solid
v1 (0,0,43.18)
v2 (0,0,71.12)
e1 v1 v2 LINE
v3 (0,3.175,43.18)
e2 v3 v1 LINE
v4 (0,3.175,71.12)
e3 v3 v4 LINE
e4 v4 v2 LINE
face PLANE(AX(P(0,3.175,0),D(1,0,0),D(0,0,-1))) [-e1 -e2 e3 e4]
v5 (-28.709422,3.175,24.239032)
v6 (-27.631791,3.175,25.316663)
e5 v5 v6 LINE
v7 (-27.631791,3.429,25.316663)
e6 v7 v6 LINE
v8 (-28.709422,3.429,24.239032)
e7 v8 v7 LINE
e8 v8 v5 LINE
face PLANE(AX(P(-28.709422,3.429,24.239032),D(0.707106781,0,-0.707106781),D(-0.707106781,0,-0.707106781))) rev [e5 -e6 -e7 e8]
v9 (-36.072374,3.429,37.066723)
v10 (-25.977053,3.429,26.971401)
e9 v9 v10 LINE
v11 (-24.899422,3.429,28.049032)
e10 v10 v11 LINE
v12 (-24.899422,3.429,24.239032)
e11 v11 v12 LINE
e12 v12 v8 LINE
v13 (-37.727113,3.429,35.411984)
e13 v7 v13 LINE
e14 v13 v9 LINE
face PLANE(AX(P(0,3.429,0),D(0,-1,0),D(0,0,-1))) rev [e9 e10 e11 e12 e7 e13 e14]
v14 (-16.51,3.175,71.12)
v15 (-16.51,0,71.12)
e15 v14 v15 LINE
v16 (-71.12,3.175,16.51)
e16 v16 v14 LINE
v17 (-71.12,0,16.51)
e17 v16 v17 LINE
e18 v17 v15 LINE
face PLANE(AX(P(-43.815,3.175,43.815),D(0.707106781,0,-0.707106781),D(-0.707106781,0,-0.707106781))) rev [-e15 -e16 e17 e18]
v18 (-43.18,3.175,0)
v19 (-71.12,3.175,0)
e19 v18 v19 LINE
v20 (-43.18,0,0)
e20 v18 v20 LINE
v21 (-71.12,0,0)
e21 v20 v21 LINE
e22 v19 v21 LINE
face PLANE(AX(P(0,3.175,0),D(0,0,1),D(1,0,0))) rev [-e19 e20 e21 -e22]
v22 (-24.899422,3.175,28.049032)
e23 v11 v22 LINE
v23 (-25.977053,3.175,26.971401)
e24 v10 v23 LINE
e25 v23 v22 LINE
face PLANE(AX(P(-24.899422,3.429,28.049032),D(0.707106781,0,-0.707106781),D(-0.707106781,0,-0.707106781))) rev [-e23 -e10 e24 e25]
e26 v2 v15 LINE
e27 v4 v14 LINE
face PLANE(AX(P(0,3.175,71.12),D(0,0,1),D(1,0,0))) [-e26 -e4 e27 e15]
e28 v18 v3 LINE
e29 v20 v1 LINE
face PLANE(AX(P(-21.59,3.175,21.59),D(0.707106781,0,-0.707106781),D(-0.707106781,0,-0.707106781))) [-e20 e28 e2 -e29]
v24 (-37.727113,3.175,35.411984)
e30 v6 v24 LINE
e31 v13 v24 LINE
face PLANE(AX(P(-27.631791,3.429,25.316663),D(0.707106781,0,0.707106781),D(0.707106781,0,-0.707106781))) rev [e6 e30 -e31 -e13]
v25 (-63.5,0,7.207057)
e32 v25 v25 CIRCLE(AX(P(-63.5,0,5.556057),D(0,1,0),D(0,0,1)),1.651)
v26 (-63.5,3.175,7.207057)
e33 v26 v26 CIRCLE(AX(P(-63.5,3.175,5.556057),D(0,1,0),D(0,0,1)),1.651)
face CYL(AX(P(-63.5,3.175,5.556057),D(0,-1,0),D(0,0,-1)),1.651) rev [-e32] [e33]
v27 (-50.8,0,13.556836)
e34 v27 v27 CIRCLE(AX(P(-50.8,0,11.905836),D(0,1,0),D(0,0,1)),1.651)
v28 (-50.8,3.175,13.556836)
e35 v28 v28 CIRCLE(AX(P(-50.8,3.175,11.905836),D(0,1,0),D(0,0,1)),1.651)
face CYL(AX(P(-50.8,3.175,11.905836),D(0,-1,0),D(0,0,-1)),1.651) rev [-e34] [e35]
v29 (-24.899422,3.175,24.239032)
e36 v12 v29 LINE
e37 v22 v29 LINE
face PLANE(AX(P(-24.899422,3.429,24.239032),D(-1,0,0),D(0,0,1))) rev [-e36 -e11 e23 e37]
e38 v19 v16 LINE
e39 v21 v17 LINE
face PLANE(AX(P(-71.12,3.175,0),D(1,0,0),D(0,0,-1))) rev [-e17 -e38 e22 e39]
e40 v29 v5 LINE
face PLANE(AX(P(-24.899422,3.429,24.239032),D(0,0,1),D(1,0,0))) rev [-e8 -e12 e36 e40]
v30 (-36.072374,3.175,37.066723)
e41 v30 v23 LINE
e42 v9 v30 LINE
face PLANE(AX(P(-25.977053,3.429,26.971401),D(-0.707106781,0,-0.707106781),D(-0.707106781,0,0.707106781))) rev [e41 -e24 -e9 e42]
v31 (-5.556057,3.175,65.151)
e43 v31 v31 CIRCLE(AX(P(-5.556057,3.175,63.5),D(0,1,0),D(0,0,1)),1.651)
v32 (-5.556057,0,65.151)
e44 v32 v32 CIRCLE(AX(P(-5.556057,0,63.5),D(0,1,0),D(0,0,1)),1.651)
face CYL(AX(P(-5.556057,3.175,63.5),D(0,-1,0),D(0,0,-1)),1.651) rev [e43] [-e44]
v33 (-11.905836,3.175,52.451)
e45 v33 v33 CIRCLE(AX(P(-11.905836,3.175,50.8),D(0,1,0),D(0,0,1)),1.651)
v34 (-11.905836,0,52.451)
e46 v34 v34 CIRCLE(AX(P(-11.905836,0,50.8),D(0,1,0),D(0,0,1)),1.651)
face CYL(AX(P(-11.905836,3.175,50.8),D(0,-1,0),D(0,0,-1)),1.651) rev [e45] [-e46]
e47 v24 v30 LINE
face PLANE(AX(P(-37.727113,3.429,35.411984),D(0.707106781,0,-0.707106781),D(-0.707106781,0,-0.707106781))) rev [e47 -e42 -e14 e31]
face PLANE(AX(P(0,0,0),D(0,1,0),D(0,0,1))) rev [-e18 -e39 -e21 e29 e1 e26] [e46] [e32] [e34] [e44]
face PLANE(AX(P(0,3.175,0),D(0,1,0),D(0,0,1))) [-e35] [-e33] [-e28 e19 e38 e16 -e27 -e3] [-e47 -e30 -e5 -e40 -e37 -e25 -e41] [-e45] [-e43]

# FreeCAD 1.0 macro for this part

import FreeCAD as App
import Part
import Sketcher
from FreeCAD import Vector
Q = App.Units.Quantity

doc = App.newDocument("Part")
params = doc.addObject("Spreadsheet::Sheet", "Params")
for row, (alias, value) in enumerate([
    ("sketch1_diameter", "0.13 in"),
    ("sketch1_width", "1.1 in"),
    ("sketch1_width2", "0.65 in"),
    ("pad1_length", "0.125 in"),
    ("sketch2_width", "0.15 in"),
    ("sketch2_length", "0.06 in"),
    ("pad2_length", "0.01 in"),
], start=1):
    params.set(f"A{row}", alias)
    params.set(f"B{row}", "=" + value)
    params.setAlias(f"B{row}", alias)

body = doc.addObject("PartDesign::Body", "Body")

sketch1 = doc.addObject("Sketcher::SketchObject", "Sketch")
body.addObject(sketch1)
sketch1.AttachmentSupport = (doc.XZ_Plane, [""])
sketch1.MapMode = "FlatFace"
sketch1.addGeometry(Part.LineSegment(Vector(0, 43.2, 0), Vector(-43.2, 0, 0)), False)
sketch1.addGeometry(Part.LineSegment(Vector(-43.2, 0, 0), Vector(-71.1, 0, 0)), False)
sketch1.addGeometry(Part.LineSegment(Vector(-71.1, 0, 0), Vector(-71.1, 16.5, 0)), False)
sketch1.addGeometry(Part.LineSegment(Vector(-71.1, 16.5, 0), Vector(-16.5, 71.1, 0)), False)
sketch1.addGeometry(Part.LineSegment(Vector(-16.5, 71.1, 0), Vector(0, 71.1, 0)), False)
sketch1.addGeometry(Part.LineSegment(Vector(0, 71.1, 0), Vector(0, 43.2, 0)), False)
sketch1.addGeometry(Part.Circle(Vector(-5.6, 63.5, 0), Vector(0, 0, 1), 1.7), False)
sketch1.addGeometry(Part.Circle(Vector(-11.9, 50.8, 0), Vector(0, 0, 1), 1.7), False)
sketch1.addGeometry(Part.Circle(Vector(-50.8, 11.9, 0), Vector(0, 0, 1), 1.7), False)
sketch1.addGeometry(Part.Circle(Vector(-63.5, 5.6, 0), Vector(0, 0, 1), 1.7), False)
sketch1.addConstraint(Sketcher.Constraint("Coincident", 0, 2, 1, 1))
sketch1.addConstraint(Sketcher.Constraint("Coincident", 1, 2, 2, 1))
sketch1.addConstraint(Sketcher.Constraint("Coincident", 2, 2, 3, 1))
sketch1.addConstraint(Sketcher.Constraint("Coincident", 3, 2, 4, 1))
sketch1.addConstraint(Sketcher.Constraint("Coincident", 4, 2, 5, 1))
sketch1.addConstraint(Sketcher.Constraint("Coincident", 5, 2, 0, 1))
sketch1.addConstraint(Sketcher.Constraint("Horizontal", 1))
sketch1.addConstraint(Sketcher.Constraint("Vertical", 2))
sketch1.addConstraint(Sketcher.Constraint("Horizontal", 4))
sketch1.addConstraint(Sketcher.Constraint("Vertical", 5))
sketch1.addConstraint(Sketcher.Constraint("Equal", 6, 7))
sketch1.addConstraint(Sketcher.Constraint("Equal", 7, 8))
sketch1.addConstraint(Sketcher.Constraint("Equal", 8, 9))
sketch1.addConstraint(Sketcher.Constraint("PointOnObject", 0, 2, -1))
sketch1.addConstraint(Sketcher.Constraint("PointOnObject", 4, 2, -2))
sketch1.addConstraint(Sketcher.Constraint("Parallel", 0, 3))
sketch1.addConstraint(Sketcher.Constraint("Equal", 4, 2))
sketch1.addConstraint(Sketcher.Constraint("Equal", 1, 5))
sketch1.addConstraint(Sketcher.Constraint("Diameter", 6, Q("0.13 in")))
sketch1.addConstraint(Sketcher.Constraint("DistanceX", 1, 2, 1, 1, Q("1.1 in")))
sketch1.addConstraint(Sketcher.Constraint("DistanceY", -1, 1, 7, 3, Q("2 in")))
sketch1.addConstraint(Sketcher.Constraint("DistanceX", 8, 3, -1, 1, Q("2 in")))
sketch1.addConstraint(Sketcher.Constraint("DistanceX", 4, 1, 4, 2, Q("0.65 in")))
sketch1.addConstraint(Sketcher.Constraint("DistanceY", -1, 1, 6, 3, Q("2.5 in")))
sketch1.addConstraint(Sketcher.Constraint("DistanceX", 9, 3, -1, 1, Q("2.5 in")))
sketch1.addConstraint(Sketcher.Constraint("DistanceX", 0, 2, -1, 1, Q("1.7 in")))
sketch1.addConstraint(Sketcher.Constraint("DistanceX", 7, 3, 6, 3, 6.34978))
sketch1.addConstraint(Sketcher.Constraint("DistanceY", 9, 3, 8, 3, 6.34978))
sketch1.addConstraint(Sketcher.Constraint("DistanceX", 6, 3, -1, 1, 5.556057))
sketch1.addConstraint(Sketcher.Constraint("DistanceY", -1, 1, 8, 3, 11.905836))
sketch1.setExpression("Constraints[18]", "Params.sketch1_diameter")
sketch1.setExpression("Constraints[19]", "Params.sketch1_width")
sketch1.setExpression("Constraints[22]", "Params.sketch1_width2")
pad1 = doc.addObject("PartDesign::Pad", "Pad")
body.addObject(pad1)
pad1.Profile = sketch1
pad1.setExpression("Length", "Params.pad1_length")
pad1.Reversed = True

sketch2 = doc.addObject("Sketcher::SketchObject", "Sketch001")
body.addObject(sketch2)
sketch2.AttachmentSupport = (doc.XZ_Plane, [""])
sketch2.MapMode = "FlatFace"
sketch2.AttachmentOffset = App.Placement(Vector(0, 0, -0.125 * 25.4), App.Rotation())
sketch2.addGeometry(Part.LineSegment(Vector(-24.9, 24.2, 0), Vector(-28.7, 24.2, 0)), False)
sketch2.addGeometry(Part.LineSegment(Vector(-28.7, 24.2, 0), Vector(-27.6, 25.3, 0)), False)
sketch2.addGeometry(Part.LineSegment(Vector(-27.6, 25.3, 0), Vector(-37.7, 35.4, 0)), False)
sketch2.addGeometry(Part.LineSegment(Vector(-37.7, 35.4, 0), Vector(-36.1, 37.1, 0)), False)
sketch2.addGeometry(Part.LineSegment(Vector(-36.1, 37.1, 0), Vector(-26, 27, 0)), False)
sketch2.addGeometry(Part.LineSegment(Vector(-26, 27, 0), Vector(-24.9, 28, 0)), False)
sketch2.addGeometry(Part.LineSegment(Vector(-24.9, 28, 0), Vector(-24.9, 24.2, 0)), False)
sketch2.addConstraint(Sketcher.Constraint("Coincident", 0, 2, 1, 1))
sketch2.addConstraint(Sketcher.Constraint("Coincident", 1, 2, 2, 1))
sketch2.addConstraint(Sketcher.Constraint("Coincident", 2, 2, 3, 1))
sketch2.addConstraint(Sketcher.Constraint("Coincident", 3, 2, 4, 1))
sketch2.addConstraint(Sketcher.Constraint("Coincident", 4, 2, 5, 1))
sketch2.addConstraint(Sketcher.Constraint("Coincident", 5, 2, 6, 1))
sketch2.addConstraint(Sketcher.Constraint("Coincident", 6, 2, 0, 1))
sketch2.addConstraint(Sketcher.Constraint("Horizontal", 0))
sketch2.addConstraint(Sketcher.Constraint("Vertical", 6))
sketch2.addConstraint(Sketcher.Constraint("Perpendicular", 1, 2))
sketch2.addConstraint(Sketcher.Constraint("Perpendicular", 2, 3))
sketch2.addConstraint(Sketcher.Constraint("Perpendicular", 3, 4))
sketch2.addConstraint(Sketcher.Constraint("Perpendicular", 4, 5))
sketch2.addConstraint(Sketcher.Constraint("Equal", 0, 6))
sketch2.addConstraint(Sketcher.Constraint("Equal", 2, 4))
sketch2.addConstraint(Sketcher.Constraint("Equal", 1, 5))
sketch2.addConstraint(Sketcher.Constraint("DistanceX", 0, 2, 0, 1, Q("0.15 in")))
sketch2.addConstraint(Sketcher.Constraint("Distance", 1, Q("0.06 in")))
sketch2.addConstraint(Sketcher.Constraint("DistanceY", -1, 1, 4, 2, 26.971401))
sketch2.addConstraint(Sketcher.Constraint("Distance", 2, 14.276941))
sketch2.addConstraint(Sketcher.Constraint("DistanceX", 1, 2, -1, 1, 27.631791))
sketch2.setExpression("Constraints[16]", "Params.sketch2_width")
sketch2.setExpression("Constraints[17]", "Params.sketch2_length")
pad2 = doc.addObject("PartDesign::Pad", "Pad001")
body.addObject(pad2)
pad2.Profile = sketch2
pad2.setExpression("Length", "Params.pad2_length")
pad2.Reversed = True

doc.recompute()
